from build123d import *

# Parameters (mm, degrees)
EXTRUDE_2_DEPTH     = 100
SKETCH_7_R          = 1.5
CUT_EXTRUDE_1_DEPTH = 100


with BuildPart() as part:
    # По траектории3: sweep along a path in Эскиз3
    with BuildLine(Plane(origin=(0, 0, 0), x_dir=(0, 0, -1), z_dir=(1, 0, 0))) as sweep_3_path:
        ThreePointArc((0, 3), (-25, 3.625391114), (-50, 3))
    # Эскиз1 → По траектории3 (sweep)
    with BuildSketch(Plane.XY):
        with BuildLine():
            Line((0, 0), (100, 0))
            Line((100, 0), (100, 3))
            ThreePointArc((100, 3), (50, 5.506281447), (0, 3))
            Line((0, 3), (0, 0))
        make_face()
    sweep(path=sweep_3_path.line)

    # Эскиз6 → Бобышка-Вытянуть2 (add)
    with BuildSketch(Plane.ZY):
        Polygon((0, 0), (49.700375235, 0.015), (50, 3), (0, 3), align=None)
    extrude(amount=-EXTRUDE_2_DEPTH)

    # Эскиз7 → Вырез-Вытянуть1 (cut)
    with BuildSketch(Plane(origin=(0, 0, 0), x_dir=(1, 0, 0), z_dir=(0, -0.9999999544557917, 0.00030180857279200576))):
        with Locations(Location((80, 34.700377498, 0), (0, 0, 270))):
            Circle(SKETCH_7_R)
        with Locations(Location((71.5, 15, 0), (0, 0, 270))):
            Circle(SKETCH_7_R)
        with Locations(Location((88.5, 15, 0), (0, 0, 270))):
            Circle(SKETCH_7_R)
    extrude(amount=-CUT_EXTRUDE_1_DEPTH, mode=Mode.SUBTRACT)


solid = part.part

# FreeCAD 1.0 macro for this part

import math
import FreeCAD as App
import Part
import Sketcher


def add_polygon(sketch, points):
    """Adds a closed chain of lines whose ends are joined by coincident constraints."""
    first, n = sketch.GeometryCount, len(points)
    for a, b in zip(points, points[1:] + points[:1]):
        sketch.addGeometry(Part.LineSegment(App.Vector(*a, 0), App.Vector(*b, 0)), False)
    for i in range(n):
        sketch.addConstraint(Sketcher.Constraint("Coincident", first + i, 2, first + (i + 1) % n, 1))

doc = App.newDocument("Part")
params = doc.addObject("Spreadsheet::Sheet", "Params")
for row, (alias, value) in enumerate([
    ("sketch1_radius", "500 mm"),
    ("sketch1_width", "100 mm"),
    ("sketch1_height", "3 mm"),
    ("sketch2_radius", "500 mm"),
    ("sketch3_width", "3 mm"),
    ("sketch3_height", "50 mm"),
    ("sketch3_length", "3 mm"),
    ("pad1_length", "100 mm"),
    ("sketch4_diameter", "3 mm"),
    ("pocket1_length", "100 mm"),
], start=1):
    params.set(f"A{row}", alias)
    params.set(f"B{row}", "=" + value)
    params.setAlias(f"B{row}", alias)

body = doc.addObject("PartDesign::Body", "Body")

sketch1 = body.newObject("Sketcher::SketchObject", "Sketch")
sketch1.AttachmentSupport = (doc.getObject("XY_Plane"), [""])
sketch1.MapMode = "FlatFace"
sketch1.addGeometry(Part.LineSegment(App.Vector(0, 0, 0), App.Vector(100, 0, 0)), False)
sketch1.addGeometry(Part.LineSegment(App.Vector(100, 0, 0), App.Vector(100, 3, 0)), False)
sketch1.addGeometry(Part.ArcOfCircle(Part.Circle(App.Vector(50, -494.493718, 0), App.Vector(0, 0, 1), 500), math.radians(84.26083), math.radians(95.73917)), False)
sketch1.addGeometry(Part.LineSegment(App.Vector(0, 3, 0), App.Vector(0, 0, 0)), False)
sketch1.addConstraint(Sketcher.Constraint("Coincident", 0, 2, 1, 1))
sketch1.addConstraint(Sketcher.Constraint("Coincident", 1, 2, 2, 1))
sketch1.addConstraint(Sketcher.Constraint("Coincident", 2, 2, 3, 1))
sketch1.addConstraint(Sketcher.Constraint("Coincident", 3, 2, 0, 1))
sketch1.addConstraint(Sketcher.Constraint("Horizontal", 0))
sketch1.addConstraint(Sketcher.Constraint("Vertical", 1))
sketch1.addConstraint(Sketcher.Constraint("Vertical", 3))
sketch1.addConstraint(Sketcher.Constraint("Coincident", 3, 2, -1, 1))
sketch1.addConstraint(Sketcher.Constraint("Horizontal", 1, 2, 2, 2))
sketch1.addConstraint(Sketcher.Constraint("Radius", 2, 500.0))
sketch1.addConstraint(Sketcher.Constraint("DistanceX", 0, 1, 0, 2, 100.0))
sketch1.addConstraint(Sketcher.Constraint("DistanceY", 1, 1, 1, 2, 3.0))
sketch1.setExpression("Constraints[9]", "Params.sketch1_radius")
sketch1.setExpression("Constraints[10]", "Params.sketch1_width")
sketch1.setExpression("Constraints[11]", "Params.sketch1_height")

sketch2 = body.newObject("Sketcher::SketchObject", "Sketch001")
sketch2.AttachmentSupport = (doc.getObject("YZ_Plane"), [""])
sketch2.MapMode = "FlatFace"
sketch2.addGeometry(Part.ArcOfCircle(Part.Circle(App.Vector(-496.374609, 25, 0), App.Vector(0, 0, 1), 500), math.radians(-2.865984), math.radians(2.865984)), False)
sketch2.addConstraint(Sketcher.Constraint("PointOnObject", 0, 1, -1))
sketch2.addConstraint(Sketcher.Constraint("Radius", 0, 500.0))
sketch2.addConstraint(Sketcher.Constraint("DistanceY", -1, 1, 0, 3, 25.0))
sketch2.addConstraint(Sketcher.Constraint("DistanceX", -1, 1, 0, 1, 3.0))
sketch2.addConstraint(Sketcher.Constraint("DistanceX", -1, 1, 0, 2, 3.0))
sketch2.setExpression("Constraints[1]", "Params.sketch2_radius")
doc.recompute()

additivepipe = body.newObject("PartDesign::AdditivePipe", "AdditivePipe")
additivepipe.Profile = sketch1
additivepipe.Spine = (sketch2, ["Edge1"])

sketch3 = body.newObject("Sketcher::SketchObject", "Sketch002")
sketch3.AttachmentSupport = (doc.getObject("YZ_Plane"), [""])
sketch3.MapMode = "FlatFace"
add_polygon(sketch3, [(0, 0), (0.015, 49.700375), (3, 50), (3, 0)])
sketch3.addConstraint(Sketcher.Constraint("Vertical", 2))
sketch3.addConstraint(Sketcher.Constraint("Horizontal", 3))
sketch3.addConstraint(Sketcher.Constraint("Coincident", 3, 2, -1, 1))
sketch3.addConstraint(Sketcher.Constraint("DistanceX", 3, 2, 3, 1, 3.0))
sketch3.addConstraint(Sketcher.Constraint("DistanceY", 2, 2, 2, 1, 50.0))
sketch3.addConstraint(Sketcher.Constraint("Distance", 1, 3.0))
sketch3.addConstraint(Sketcher.Constraint("DistanceX", -1, 1, 0, 2, 0.015))
sketch3.setExpression("Constraints[7]", "Params.sketch3_width")
sketch3.setExpression("Constraints[8]", "Params.sketch3_height")
sketch3.setExpression("Constraints[9]", "Params.sketch3_length")
pad1 = body.newObject("PartDesign::Pad", "Pad")
pad1.Profile = sketch3
pad1.setExpression("Length", "Params.pad1_length")

sketch4 = body.newObject("Sketcher::SketchObject", "Sketch003")
sketch4.Placement = App.Placement(App.Vector(0, 0, 0), App.Rotation(App.Vector(1, 0, 0), App.Vector(0, 0.000301809, 0.999999954), App.Vector(0, -0.999999954, 0.000301809), "ZXY"))
sketch4.addGeometry(Part.Circle(App.Vector(80, 34.700377, 0), App.Vector(0, 0, 1), 1.5), False)
sketch4.addGeometry(Part.Circle(App.Vector(71.5, 15, 0), App.Vector(0, 0, 1), 1.5), False)
sketch4.addGeometry(Part.Circle(App.Vector(88.5, 15, 0), App.Vector(0, 0, 1), 1.5), False)
sketch4.addConstraint(Sketcher.Constraint("Equal", 0, 1))
sketch4.addConstraint(Sketcher.Constraint("Equal", 1, 2))
sketch4.addConstraint(Sketcher.Constraint("Horizontal", 1, 3, 2, 3))
sketch4.addConstraint(Sketcher.Constraint("Diameter", 0, 3.0))
sketch4.addConstraint(Sketcher.Constraint("DistanceX", -1, 1, 0, 3, 80.0))
sketch4.addConstraint(Sketcher.Constraint("DistanceY", -1, 1, 1, 3, 15.0))
sketch4.addConstraint(Sketcher.Constraint("DistanceX", 1, 3, 2, 3, 17.0))
sketch4.addConstraint(Sketcher.Constraint("DistanceX", -1, 1, 1, 3, 71.5))
sketch4.addConstraint(Sketcher.Constraint("DistanceY", -1, 1, 0, 3, 34.700377))
sketch4.setExpression("Constraints[3]", "Params.sketch4_diameter")
pocket1 = body.newObject("PartDesign::Pocket", "Pocket")
pocket1.Profile = sketch4
pocket1.setExpression("Length", "Params.pocket1_length")

doc.recompute()
